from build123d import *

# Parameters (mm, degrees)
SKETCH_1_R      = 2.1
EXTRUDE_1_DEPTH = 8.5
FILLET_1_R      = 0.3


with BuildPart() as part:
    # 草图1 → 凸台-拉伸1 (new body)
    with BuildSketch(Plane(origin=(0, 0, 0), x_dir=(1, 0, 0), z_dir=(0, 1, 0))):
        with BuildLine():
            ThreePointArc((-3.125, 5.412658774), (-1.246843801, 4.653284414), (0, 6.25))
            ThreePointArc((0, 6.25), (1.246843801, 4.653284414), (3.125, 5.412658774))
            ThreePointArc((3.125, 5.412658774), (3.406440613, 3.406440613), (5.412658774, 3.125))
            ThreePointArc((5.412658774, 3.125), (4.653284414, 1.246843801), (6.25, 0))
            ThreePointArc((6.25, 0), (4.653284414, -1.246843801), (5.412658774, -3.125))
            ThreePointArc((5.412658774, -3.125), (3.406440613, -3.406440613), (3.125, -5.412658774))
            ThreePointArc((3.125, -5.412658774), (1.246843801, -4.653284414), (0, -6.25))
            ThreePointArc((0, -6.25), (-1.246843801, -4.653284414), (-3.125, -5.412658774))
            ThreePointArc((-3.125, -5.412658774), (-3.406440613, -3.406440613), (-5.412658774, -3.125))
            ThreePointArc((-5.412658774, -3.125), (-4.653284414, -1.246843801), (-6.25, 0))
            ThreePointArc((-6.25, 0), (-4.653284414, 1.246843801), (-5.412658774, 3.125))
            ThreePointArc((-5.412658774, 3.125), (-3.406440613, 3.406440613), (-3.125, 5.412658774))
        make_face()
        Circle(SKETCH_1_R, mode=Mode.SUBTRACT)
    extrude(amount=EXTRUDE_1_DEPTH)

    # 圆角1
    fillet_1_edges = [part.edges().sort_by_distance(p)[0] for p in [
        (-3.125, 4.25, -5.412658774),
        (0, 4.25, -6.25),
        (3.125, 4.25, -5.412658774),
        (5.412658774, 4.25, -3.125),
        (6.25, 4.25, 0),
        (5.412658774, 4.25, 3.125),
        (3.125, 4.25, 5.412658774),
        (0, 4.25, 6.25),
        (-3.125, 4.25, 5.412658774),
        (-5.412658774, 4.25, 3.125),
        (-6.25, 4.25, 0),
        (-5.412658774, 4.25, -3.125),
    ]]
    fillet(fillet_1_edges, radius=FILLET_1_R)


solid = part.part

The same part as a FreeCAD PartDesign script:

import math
import FreeCAD as App
import Part
import Sketcher


def edges_at(feature, points):
    """Names of the edges that pass closest to the given points."""
    edges = feature.Shape.Edges
    near = lambda p: min(range(len(edges)), key=lambda i: edges[i].distToShape(Part.Vertex(*p))[0])
    return sorted({f"Edge{near(p) + 1}" for p in points})

doc = App.newDocument("Part")
body = doc.addObject("PartDesign::Body", "Body")

sketch1 = body.newObject("Sketcher::SketchObject", "Sketch")
sketch1.AttachmentSupport = (doc.getObject("XZ_Plane"), [""])
sketch1.MapMode = "FlatFace"
sketch1.addGeometry([
    Part.ArcOfCircle(Part.Circle(App.Vector(-1.7, -6.3, 0), App.Vector(0, 0, 1), 1.7), math.radians(1), math.radians(149)),
    Part.ArcOfCircle(Part.Circle(App.Vector(-4.6, -4.6, 0), App.Vector(0, 0, 1), 1.7), math.radians(-29), math.radians(119)),
    Part.ArcOfCircle(Part.Circle(App.Vector(-6.3, -1.7, 0), App.Vector(0, 0, 1), 1.7), math.radians(-59), math.radians(89)),
    Part.ArcOfCircle(Part.Circle(App.Vector(-6.3, 1.7, 0), App.Vector(0, 0, 1), 1.7), math.radians(-89), math.radians(59)),
    Part.ArcOfCircle(Part.Circle(App.Vector(-4.6, 4.6, 0), App.Vector(0, 0, 1), 1.7), math.radians(-119), math.radians(29)),
    Part.ArcOfCircle(Part.Circle(App.Vector(-1.7, 6.3, 0), App.Vector(0, 0, 1), 1.7), math.radians(-149), math.radians(-1)),
    Part.ArcOfCircle(Part.Circle(App.Vector(1.7, 6.3, 0), App.Vector(0, 0, 1), 1.7), math.radians(-179), math.radians(-31)),
    Part.ArcOfCircle(Part.Circle(App.Vector(4.6, 4.6, 0), App.Vector(0, 0, 1), 1.7), math.radians(151), math.radians(299)),
    Part.ArcOfCircle(Part.Circle(App.Vector(6.3, 1.7, 0), App.Vector(0, 0, 1), 1.7), math.radians(121), math.radians(269)),
    Part.ArcOfCircle(Part.Circle(App.Vector(6.3, -1.7, 0), App.Vector(0, 0, 1), 1.7), math.radians(91), math.radians(239)),
    Part.ArcOfCircle(Part.Circle(App.Vector(4.6, -4.6, 0), App.Vector(0, 0, 1), 1.7), math.radians(61), math.radians(209)),
    Part.ArcOfCircle(Part.Circle(App.Vector(1.7, -6.3, 0), App.Vector(0, 0, 1), 1.7), math.radians(31), math.radians(179)),
    Part.Circle(App.Vector(0, 0, 0), App.Vector(0, 0, 1), 2.1),
], False)
sketch1.addConstraint([
    Sketcher.Constraint("Coincident", 0, 2, 1, 1),
    Sketcher.Constraint("Coincident", 1, 2, 2, 1),
    Sketcher.Constraint("Coincident", 2, 2, 3, 1),
    Sketcher.Constraint("Coincident", 3, 2, 4, 1),
    Sketcher.Constraint("Coincident", 4, 2, 5, 1),
    Sketcher.Constraint("Coincident", 5, 2, 6, 1),
    Sketcher.Constraint("Coincident", 6, 2, 7, 1),
    Sketcher.Constraint("Coincident", 7, 2, 8, 1),
    Sketcher.Constraint("Coincident", 8, 2, 9, 1),
    Sketcher.Constraint("Coincident", 9, 2, 10, 1),
    Sketcher.Constraint("Coincident", 10, 2, 11, 1),
    Sketcher.Constraint("Coincident", 11, 2, 0, 1),
    Sketcher.Constraint("Coincident", 12, 3, -1, 1),
    Sketcher.Constraint("Equal", 0, 1),
    Sketcher.Constraint("Equal", 1, 2),
    Sketcher.Constraint("Equal", 2, 3),
    Sketcher.Constraint("Equal", 3, 4),
    Sketcher.Constraint("Equal", 4, 5),
    Sketcher.Constraint("Equal", 5, 6),
    Sketcher.Constraint("Equal", 6, 7),
    Sketcher.Constraint("Equal", 7, 8),
    Sketcher.Constraint("Equal", 8, 9),
    Sketcher.Constraint("Equal", 9, 10),
    Sketcher.Constraint("Equal", 10, 11),
    Sketcher.Constraint("Symmetric", 0, 3, 6, 3, -1, 1),
    Sketcher.Constraint("Symmetric", 1, 3, 7, 3, -1, 1),
    Sketcher.Constraint("Symmetric", 2, 3, 8, 3, -1, 1),
    Sketcher.Constraint("Symmetric", 3, 3, 9, 3, -1, 1),
    Sketcher.Constraint("Symmetric", 4, 3, 10, 3, -1, 1),
    Sketcher.Constraint("Symmetric", 5, 3, 11, 3, -1, 1),
    Sketcher.Constraint("Symmetric", 5, 3, 6, 3, -2),
    Sketcher.Constraint("Symmetric", 4, 3, 7, 3, -2),
    Sketcher.Constraint("Symmetric", 3, 3, 8, 3, -2),
    Sketcher.Constraint("Diameter", 12, 4.2),
    Sketcher.Constraint("DistanceX", 2, 2, -1, 1, 6.25),
    Sketcher.Constraint("DistanceY", -1, 1, 5, 2, 6.25),
    Sketcher.Constraint("DistanceX", 0, 2, -1, 1, 3.125),
    Sketcher.Constraint("DistanceY", 1, 2, -1, 1, 3.125),
    Sketcher.Constraint("Radius", 0, 1.682565),
    Sketcher.Constraint("DistanceY", 0, 2, -1, 1, 5.412659),
    Sketcher.Constraint("DistanceX", 1, 2, -1, 1, 5.412659),
])
pad1 = body.newObject("PartDesign::Pad", "Pad")
pad1.Profile = sketch1
pad1.Length = 8.5
pad1.Reversed = True
doc.recompute()

fillet = body.newObject("PartDesign::Fillet", "Fillet")
fillet.Base = (pad1, edges_at(pad1, [
    (-3.125, 4.25, -5.413),
    (0, 4.25, -6.25),
    (3.125, 4.25, -5.413),
    (5.413, 4.25, -3.125),
    (6.25, 4.25, 0),
    (5.413, 4.25, 3.125),
    (3.125, 4.25, 5.413),
    (0, 4.25, 6.25),
    (-3.125, 4.25, 5.413),
    (-5.413, 4.25, 3.125),
    (-6.25, 4.25, 0),
    (-5.413, 4.25, -3.125),
]))
fillet.Radius = 0.3

doc.recompute()
